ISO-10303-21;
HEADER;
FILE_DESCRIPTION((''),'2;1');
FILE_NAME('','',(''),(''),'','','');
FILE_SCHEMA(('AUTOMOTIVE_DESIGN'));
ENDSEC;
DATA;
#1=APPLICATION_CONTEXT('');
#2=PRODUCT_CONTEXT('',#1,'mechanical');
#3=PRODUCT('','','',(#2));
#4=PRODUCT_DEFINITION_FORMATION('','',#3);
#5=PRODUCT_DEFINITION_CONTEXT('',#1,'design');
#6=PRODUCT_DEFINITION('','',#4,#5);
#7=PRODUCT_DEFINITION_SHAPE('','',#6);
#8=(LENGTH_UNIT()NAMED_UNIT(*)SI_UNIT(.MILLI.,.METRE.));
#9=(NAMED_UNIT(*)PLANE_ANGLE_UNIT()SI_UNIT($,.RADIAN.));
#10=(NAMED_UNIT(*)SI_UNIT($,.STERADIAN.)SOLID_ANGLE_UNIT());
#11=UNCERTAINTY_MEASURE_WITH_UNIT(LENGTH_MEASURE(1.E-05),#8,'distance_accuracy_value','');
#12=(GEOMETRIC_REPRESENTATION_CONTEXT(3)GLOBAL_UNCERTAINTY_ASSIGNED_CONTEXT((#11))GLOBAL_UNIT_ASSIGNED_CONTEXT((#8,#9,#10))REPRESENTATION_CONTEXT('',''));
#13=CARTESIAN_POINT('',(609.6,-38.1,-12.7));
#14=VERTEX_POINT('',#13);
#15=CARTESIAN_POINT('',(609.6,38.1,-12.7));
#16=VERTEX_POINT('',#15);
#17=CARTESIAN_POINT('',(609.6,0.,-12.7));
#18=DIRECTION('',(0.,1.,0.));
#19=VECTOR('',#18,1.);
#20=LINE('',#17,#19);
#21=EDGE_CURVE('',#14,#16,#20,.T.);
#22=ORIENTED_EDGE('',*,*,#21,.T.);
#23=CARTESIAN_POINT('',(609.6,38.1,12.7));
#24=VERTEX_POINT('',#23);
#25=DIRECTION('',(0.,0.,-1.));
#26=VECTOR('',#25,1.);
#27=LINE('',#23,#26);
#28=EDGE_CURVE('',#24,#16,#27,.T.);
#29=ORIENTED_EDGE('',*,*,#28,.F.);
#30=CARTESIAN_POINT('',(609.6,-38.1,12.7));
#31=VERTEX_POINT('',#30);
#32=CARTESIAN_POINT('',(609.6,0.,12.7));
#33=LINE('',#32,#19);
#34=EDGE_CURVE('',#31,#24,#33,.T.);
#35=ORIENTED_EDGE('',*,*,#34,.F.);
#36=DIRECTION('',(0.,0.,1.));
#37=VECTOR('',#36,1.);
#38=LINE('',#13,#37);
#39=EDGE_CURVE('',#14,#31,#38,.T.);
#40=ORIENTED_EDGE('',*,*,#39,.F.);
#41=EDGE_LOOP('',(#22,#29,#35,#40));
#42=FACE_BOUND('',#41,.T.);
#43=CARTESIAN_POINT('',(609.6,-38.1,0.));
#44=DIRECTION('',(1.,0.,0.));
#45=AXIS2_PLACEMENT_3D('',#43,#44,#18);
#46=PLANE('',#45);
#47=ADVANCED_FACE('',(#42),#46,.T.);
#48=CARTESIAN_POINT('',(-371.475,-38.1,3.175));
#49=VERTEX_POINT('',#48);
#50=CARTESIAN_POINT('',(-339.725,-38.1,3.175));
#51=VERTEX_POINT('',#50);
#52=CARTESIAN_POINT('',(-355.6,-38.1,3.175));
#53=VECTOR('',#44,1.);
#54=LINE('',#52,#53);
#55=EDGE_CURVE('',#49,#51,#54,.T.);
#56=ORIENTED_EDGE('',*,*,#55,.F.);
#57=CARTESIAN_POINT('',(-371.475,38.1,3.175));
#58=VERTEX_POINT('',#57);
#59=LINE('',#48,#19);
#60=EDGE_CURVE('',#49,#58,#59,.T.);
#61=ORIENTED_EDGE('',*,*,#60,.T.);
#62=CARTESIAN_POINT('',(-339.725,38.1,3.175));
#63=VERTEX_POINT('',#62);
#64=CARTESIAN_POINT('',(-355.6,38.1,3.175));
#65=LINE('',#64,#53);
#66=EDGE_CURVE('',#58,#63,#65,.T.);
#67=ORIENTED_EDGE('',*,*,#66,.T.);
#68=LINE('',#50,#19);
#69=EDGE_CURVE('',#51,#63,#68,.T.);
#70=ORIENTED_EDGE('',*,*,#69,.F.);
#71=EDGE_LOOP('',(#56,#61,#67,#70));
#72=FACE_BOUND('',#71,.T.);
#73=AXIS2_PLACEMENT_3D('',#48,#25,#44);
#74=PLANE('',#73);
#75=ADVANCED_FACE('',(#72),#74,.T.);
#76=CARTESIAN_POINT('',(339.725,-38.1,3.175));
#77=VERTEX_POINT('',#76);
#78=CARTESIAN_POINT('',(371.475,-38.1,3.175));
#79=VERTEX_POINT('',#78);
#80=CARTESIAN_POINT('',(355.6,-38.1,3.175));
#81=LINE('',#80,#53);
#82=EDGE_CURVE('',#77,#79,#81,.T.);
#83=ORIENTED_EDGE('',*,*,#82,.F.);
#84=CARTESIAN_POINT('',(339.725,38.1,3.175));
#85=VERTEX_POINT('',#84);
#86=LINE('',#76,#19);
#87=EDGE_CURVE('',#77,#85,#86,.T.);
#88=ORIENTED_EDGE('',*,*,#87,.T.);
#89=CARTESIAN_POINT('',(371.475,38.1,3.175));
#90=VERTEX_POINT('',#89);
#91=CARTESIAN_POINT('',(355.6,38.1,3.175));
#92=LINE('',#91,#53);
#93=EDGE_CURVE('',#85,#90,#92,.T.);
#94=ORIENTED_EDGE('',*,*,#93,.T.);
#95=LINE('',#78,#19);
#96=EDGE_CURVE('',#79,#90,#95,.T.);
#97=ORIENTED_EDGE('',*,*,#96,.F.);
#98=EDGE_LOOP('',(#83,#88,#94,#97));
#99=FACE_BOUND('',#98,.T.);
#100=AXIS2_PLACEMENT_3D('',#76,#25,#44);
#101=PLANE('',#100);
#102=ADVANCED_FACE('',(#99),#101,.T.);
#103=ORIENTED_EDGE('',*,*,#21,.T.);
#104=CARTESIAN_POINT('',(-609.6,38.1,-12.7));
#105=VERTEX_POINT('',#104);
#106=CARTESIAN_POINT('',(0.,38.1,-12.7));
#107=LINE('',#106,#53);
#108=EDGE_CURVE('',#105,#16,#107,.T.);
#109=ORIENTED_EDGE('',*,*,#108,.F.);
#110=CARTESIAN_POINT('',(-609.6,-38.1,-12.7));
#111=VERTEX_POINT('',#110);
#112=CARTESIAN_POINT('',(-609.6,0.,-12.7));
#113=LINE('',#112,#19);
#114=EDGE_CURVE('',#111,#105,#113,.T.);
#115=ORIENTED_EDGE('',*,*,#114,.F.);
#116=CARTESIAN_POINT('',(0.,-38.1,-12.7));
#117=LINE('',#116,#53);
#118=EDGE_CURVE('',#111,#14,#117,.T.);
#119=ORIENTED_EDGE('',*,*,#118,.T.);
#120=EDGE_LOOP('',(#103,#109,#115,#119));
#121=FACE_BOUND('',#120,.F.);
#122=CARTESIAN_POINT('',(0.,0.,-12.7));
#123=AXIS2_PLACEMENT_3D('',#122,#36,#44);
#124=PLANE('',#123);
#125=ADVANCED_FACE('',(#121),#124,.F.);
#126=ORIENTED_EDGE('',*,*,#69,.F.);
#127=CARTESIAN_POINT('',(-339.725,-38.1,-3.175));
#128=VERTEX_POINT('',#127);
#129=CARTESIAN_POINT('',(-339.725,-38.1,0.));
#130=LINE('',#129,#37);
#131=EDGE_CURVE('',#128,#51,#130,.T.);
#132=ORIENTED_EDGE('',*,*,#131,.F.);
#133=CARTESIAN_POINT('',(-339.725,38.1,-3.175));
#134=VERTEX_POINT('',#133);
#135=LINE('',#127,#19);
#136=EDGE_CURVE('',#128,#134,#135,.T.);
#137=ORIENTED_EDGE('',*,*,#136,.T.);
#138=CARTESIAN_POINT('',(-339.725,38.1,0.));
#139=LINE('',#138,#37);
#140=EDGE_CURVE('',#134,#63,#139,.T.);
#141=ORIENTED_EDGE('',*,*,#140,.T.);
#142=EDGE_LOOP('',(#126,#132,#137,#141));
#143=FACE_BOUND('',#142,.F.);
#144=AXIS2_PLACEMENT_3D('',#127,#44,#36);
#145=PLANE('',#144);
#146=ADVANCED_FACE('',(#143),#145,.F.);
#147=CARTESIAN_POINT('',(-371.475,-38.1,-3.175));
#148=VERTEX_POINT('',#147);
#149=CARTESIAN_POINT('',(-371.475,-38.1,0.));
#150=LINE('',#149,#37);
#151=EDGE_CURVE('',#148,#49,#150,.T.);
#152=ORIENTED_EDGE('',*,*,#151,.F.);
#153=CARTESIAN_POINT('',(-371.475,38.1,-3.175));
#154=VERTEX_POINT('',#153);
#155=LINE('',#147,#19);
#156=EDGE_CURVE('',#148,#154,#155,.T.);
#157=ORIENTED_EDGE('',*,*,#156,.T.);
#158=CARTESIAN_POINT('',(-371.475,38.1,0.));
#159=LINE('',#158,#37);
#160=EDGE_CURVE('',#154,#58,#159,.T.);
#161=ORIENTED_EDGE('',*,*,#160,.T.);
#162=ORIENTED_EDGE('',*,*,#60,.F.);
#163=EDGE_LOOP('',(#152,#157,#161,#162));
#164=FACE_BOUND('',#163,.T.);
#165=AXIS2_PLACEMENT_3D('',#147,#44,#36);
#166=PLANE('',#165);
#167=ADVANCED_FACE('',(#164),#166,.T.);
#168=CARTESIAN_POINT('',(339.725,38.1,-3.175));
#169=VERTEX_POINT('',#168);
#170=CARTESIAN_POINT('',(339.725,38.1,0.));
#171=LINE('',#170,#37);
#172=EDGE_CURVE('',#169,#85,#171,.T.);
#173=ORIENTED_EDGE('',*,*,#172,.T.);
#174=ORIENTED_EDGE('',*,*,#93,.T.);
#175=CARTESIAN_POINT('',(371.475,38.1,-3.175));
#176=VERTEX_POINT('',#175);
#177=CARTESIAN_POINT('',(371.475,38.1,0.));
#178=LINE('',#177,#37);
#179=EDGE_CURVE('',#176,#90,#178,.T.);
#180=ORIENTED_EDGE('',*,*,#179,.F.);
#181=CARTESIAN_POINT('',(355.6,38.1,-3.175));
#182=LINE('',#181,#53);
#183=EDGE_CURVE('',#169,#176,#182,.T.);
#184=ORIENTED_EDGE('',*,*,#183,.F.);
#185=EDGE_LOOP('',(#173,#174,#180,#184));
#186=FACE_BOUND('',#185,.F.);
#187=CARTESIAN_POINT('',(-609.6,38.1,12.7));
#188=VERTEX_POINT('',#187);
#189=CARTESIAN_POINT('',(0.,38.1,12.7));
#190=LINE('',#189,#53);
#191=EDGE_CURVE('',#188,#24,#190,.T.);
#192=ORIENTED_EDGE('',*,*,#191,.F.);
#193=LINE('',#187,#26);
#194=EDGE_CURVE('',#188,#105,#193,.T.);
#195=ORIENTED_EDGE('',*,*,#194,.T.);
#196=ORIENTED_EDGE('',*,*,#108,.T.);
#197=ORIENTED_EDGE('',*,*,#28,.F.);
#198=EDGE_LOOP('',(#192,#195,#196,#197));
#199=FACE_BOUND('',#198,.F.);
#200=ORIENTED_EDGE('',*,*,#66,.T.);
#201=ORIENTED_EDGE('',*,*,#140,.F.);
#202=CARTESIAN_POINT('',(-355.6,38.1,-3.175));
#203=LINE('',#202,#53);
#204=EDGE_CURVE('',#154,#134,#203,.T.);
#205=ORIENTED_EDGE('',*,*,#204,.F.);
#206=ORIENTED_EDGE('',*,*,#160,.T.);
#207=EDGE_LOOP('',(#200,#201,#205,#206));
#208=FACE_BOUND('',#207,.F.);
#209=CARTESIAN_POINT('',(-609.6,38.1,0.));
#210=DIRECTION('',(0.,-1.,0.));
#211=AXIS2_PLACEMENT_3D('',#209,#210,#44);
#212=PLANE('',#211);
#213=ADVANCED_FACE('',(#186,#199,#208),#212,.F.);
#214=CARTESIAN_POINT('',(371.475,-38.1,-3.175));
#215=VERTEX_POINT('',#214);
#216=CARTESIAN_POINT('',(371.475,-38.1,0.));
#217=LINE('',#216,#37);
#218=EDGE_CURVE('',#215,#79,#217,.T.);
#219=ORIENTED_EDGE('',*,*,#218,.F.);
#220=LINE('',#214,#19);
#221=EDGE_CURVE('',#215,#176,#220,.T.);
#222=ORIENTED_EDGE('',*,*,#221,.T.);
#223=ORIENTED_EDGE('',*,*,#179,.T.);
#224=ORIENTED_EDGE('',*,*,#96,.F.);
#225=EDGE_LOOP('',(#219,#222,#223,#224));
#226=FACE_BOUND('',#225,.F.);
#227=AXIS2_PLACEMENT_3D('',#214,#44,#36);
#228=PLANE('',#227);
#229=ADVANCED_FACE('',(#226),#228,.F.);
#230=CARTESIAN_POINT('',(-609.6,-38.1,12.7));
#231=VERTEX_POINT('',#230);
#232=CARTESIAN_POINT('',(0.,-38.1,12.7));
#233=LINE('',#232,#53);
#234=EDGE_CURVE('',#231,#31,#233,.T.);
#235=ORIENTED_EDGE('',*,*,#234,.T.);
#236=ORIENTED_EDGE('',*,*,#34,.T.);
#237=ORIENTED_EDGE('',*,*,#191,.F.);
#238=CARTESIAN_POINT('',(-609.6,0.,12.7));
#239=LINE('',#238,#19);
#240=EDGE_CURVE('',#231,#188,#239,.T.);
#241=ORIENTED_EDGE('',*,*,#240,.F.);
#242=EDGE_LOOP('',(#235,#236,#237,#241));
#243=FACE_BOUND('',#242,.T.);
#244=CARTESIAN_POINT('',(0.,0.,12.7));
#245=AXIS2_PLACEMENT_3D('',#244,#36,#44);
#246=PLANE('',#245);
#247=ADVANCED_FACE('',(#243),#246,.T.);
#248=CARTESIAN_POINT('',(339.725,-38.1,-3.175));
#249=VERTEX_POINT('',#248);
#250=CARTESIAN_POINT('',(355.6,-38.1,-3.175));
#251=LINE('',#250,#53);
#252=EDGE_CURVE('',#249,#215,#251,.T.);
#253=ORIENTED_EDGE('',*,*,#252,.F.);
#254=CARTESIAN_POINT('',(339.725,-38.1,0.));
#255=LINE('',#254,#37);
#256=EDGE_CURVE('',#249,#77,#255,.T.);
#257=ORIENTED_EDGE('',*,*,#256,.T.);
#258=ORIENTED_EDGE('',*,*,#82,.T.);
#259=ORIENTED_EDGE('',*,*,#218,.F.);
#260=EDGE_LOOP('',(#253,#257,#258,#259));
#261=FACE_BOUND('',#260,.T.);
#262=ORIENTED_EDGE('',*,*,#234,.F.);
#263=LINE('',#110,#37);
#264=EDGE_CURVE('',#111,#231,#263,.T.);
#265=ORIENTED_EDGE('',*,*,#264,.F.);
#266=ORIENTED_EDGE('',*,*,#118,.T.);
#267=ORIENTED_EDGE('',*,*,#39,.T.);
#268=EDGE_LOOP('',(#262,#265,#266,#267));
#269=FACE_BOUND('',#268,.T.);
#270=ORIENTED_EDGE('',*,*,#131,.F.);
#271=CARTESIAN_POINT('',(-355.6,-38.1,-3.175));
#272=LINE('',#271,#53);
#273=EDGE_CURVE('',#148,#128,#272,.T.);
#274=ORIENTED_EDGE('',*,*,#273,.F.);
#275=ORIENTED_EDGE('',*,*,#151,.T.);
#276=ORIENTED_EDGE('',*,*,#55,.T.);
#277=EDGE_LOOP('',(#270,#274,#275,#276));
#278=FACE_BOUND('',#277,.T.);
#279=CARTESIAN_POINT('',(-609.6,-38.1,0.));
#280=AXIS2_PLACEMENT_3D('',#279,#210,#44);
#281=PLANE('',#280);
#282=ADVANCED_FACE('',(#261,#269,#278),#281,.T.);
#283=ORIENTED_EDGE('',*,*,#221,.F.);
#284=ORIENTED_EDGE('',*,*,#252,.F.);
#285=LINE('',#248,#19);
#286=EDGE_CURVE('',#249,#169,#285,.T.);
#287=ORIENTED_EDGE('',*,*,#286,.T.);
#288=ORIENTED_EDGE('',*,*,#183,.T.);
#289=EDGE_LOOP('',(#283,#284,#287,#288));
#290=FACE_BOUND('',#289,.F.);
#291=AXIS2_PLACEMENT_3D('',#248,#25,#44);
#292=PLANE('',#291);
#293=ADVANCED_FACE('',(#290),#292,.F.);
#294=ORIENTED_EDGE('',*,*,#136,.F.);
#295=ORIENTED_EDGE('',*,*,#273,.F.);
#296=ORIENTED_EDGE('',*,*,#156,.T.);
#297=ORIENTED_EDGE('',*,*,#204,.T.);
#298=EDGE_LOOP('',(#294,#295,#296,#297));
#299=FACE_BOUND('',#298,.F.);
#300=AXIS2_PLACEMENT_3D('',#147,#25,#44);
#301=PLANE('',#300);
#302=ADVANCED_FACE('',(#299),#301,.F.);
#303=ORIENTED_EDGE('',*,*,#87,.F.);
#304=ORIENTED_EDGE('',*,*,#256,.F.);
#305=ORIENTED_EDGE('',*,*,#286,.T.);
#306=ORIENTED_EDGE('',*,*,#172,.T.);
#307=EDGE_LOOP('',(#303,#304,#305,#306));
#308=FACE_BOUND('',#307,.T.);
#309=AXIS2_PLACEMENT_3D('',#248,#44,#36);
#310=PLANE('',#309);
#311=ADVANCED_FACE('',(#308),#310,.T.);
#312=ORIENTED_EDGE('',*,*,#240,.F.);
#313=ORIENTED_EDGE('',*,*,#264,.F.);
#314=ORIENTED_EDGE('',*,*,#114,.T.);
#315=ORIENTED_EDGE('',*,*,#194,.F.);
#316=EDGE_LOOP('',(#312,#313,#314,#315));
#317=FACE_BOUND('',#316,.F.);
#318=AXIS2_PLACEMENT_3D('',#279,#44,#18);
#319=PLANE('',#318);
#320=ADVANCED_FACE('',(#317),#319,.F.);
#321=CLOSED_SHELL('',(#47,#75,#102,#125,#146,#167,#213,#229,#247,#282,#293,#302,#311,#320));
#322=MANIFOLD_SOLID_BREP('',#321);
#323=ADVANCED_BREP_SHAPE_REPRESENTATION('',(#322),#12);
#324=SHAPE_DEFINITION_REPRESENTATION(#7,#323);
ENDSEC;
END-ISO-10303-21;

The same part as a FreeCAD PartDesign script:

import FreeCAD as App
import Part
import Sketcher
Q = App.Units.Quantity


def add_polygon(sketch, points):
    """Adds a closed chain of lines whose ends are joined by coincident constraints."""
    first, n = sketch.GeometryCount, len(points)
    for a, b in zip(points, points[1:] + points[:1]):
        sketch.addGeometry(Part.LineSegment(App.Vector(*a, 0), App.Vector(*b, 0)), False)
    for i in range(n):
        sketch.addConstraint(Sketcher.Constraint("Coincident", first + i, 2, first + (i + 1) % n, 1))

doc = App.newDocument("Part")
params = doc.addObject("Spreadsheet::Sheet", "Params")
for row, (alias, value) in enumerate([
    ("sketch1_width", "48 in"),
    ("sketch1_height", "3 in"),
    ("pad1_length", "1 in"),
    ("sketch2_width", "1.25 in"),
    ("sketch2_height", "0.25 in"),
    ("sketch3_width", "1.25 in"),
    ("sketch3_height", "0.25 in"),
], start=1):
    params.set(f"A{row}", alias)
    params.set(f"B{row}", "=" + value)
    params.setAlias(f"B{row}", alias)

body = doc.addObject("PartDesign::Body", "Body")

sketch1 = body.newObject("Sketcher::SketchObject", "Sketch")
sketch1.AttachmentSupport = (doc.getObject("XY_Plane"), [""])
sketch1.MapMode = "FlatFace"
add_polygon(sketch1, [(-610, 38), (-610, -38), (610, -38), (610, 38)])
sketch1.addConstraint([
    Sketcher.Constraint("Vertical", 0),
    Sketcher.Constraint("Horizontal", 1),
    Sketcher.Constraint("Vertical", 2),
    Sketcher.Constraint("Horizontal", 3),
    Sketcher.Constraint("Symmetric", 0, 2, 2, 2, -1, 1),
    Sketcher.Constraint("DistanceX", 1, 1, 1, 2, Q("48 in")),
    Sketcher.Constraint("DistanceY", 0, 2, 0, 1, Q("3 in")),
])
sketch1.setExpression("Constraints[9]", "Params.sketch1_width")
sketch1.setExpression("Constraints[10]", "Params.sketch1_height")
pad1 = body.newObject("PartDesign::Pad", "Pad")
pad1.Profile = sketch1
pad1.setExpression("Length", "Params.pad1_length")
pad1.Midplane = True

sketch2 = body.newObject("Sketcher::SketchObject", "Sketch001")
sketch2.AttachmentSupport = (doc.getObject("XZ_Plane"), [""])
sketch2.MapMode = "FlatFace"
sketch2.AttachmentOffset = App.Placement(App.Vector(0, 0, 1.5 * 25.4), App.Rotation())
add_polygon(sketch2, [(-371, 3), (-371, -3), (-340, -3), (-340, 3)])
sketch2.addConstraint([
    Sketcher.Constraint("Vertical", 0),
    Sketcher.Constraint("Horizontal", 1),
    Sketcher.Constraint("Vertical", 2),
    Sketcher.Constraint("Horizontal", 3),
    Sketcher.Constraint("DistanceX", 1, 1, 1, 2, Q("1.25 in")),
    Sketcher.Constraint("DistanceY", 0, 2, 0, 1, Q("0.25 in")),
    Sketcher.Constraint("DistanceX", 0, 2, -1, 1, Q("14.625 in")),
    Sketcher.Constraint("DistanceY", 0, 2, -1, 1, Q("0.125 in")),
])
sketch2.setExpression("Constraints[8]", "Params.sketch2_width")
sketch2.setExpression("Constraints[9]", "Params.sketch2_height")
pocket1 = body.newObject("PartDesign::Pocket", "Pocket")
pocket1.Profile = sketch2
pocket1.Type = "ThroughAll"

sketch3 = body.newObject("Sketcher::SketchObject", "Sketch002")
sketch3.AttachmentSupport = (doc.getObject("XZ_Plane"), [""])
sketch3.MapMode = "FlatFace"
sketch3.AttachmentOffset = App.Placement(App.Vector(0, 0, 1.5 * 25.4), App.Rotation())
add_polygon(sketch3, [(340, 3), (340, -3), (371, -3), (371, 3)])
sketch3.addConstraint([
    Sketcher.Constraint("Vertical", 0),
    Sketcher.Constraint("Horizontal", 1),
    Sketcher.Constraint("Vertical", 2),
    Sketcher.Constraint("Horizontal", 3),
    Sketcher.Constraint("DistanceX", 1, 1, 1, 2, Q("1.25 in")),
    Sketcher.Constraint("DistanceY", 0, 2, 0, 1, Q("0.25 in")),
    Sketcher.Constraint("DistanceX", -1, 1, 0, 2, Q("13.375 in")),
    Sketcher.Constraint("DistanceY", 0, 2, -1, 1, Q("0.125 in")),
])
sketch3.setExpression("Constraints[8]", "Params.sketch3_width")
sketch3.setExpression("Constraints[9]", "Params.sketch3_height")
pocket2 = body.newObject("PartDesign::Pocket", "Pocket001")
pocket2.Profile = sketch3
pocket2.Type = "ThroughAll"

doc.recompute()
